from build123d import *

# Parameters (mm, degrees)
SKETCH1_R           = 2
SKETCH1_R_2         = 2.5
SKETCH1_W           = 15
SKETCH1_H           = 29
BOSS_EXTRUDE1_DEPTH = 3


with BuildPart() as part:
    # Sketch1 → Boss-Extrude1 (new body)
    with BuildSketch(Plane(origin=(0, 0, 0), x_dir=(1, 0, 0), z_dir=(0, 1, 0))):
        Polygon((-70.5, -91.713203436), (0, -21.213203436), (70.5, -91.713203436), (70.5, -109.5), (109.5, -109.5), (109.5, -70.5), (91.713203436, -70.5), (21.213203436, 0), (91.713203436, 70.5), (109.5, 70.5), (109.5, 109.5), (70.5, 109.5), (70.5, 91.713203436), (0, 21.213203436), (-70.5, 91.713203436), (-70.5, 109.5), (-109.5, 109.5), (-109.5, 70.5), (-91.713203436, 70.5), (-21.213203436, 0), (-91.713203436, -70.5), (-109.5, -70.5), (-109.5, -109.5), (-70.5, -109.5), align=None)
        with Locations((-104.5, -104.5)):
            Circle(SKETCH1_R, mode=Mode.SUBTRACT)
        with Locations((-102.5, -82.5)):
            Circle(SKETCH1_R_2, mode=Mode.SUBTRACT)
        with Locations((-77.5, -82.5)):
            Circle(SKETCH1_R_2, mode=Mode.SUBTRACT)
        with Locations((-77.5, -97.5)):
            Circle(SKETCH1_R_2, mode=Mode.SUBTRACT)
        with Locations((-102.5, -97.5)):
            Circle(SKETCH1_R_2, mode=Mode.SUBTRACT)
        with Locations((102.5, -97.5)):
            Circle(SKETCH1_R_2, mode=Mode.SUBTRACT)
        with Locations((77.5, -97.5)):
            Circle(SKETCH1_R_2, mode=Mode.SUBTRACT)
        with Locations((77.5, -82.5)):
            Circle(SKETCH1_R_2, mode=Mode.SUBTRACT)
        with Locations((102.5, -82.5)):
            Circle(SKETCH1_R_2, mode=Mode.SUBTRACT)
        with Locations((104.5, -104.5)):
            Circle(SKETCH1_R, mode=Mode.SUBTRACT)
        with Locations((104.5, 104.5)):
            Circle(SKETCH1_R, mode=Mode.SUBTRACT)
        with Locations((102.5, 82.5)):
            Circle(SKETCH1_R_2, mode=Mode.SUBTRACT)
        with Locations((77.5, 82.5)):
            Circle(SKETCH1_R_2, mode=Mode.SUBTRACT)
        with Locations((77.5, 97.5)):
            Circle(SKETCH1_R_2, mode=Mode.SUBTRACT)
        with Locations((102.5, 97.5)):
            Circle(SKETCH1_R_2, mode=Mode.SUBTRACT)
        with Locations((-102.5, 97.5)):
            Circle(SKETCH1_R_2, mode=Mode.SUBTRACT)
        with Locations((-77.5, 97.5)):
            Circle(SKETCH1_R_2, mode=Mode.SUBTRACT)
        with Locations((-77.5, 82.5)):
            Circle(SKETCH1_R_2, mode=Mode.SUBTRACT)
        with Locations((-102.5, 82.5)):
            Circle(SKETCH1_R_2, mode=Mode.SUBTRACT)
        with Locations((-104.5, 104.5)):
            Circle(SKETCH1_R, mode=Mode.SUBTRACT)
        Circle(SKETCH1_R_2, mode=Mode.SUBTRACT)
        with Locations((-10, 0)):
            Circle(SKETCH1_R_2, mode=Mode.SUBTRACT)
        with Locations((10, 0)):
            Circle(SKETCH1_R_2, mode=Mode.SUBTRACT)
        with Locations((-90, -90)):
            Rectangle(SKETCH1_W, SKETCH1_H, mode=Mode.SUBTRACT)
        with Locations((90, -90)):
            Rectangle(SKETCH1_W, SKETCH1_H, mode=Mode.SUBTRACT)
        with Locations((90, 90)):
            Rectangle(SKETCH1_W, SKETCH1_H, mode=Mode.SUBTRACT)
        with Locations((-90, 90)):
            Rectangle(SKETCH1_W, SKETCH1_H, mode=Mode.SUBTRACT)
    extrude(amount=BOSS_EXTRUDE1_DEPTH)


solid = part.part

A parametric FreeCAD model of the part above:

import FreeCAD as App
import Part
import Sketcher
from FreeCAD import Vector
Q = App.Units.Quantity


def add_polygon(sketch, points):
    """Adds a closed chain of lines whose ends are joined by coincident constraints."""
    first, n = sketch.GeometryCount, len(points)
    for a, b in zip(points, points[1:] + points[:1]):
        sketch.addGeometry(Part.LineSegment(App.Vector(*a, 0), App.Vector(*b, 0)), False)
    for i in range(n):
        sketch.addConstraint(Sketcher.Constraint("Coincident", first + i, 2, first + (i + 1) % n, 1))

doc = App.newDocument("Part")
body = doc.addObject("PartDesign::Body", "Body")

# Sketch on XZ plane
sketch1 = body.newObject("Sketcher::SketchObject", "Sketch")
sketch1.AttachmentSupport = (doc.getObject("XZ_Plane"), [""])
sketch1.MapMode = "FlatFace"
add_polygon(sketch1, [(-70.5, 91.7), (0, 21.2), (70.5, 91.7), (70.5, 109.5), (109.5, 109.5), (109.5, 70.5), (91.7, 70.5), (21.2, 0), (91.7, -70.5), (109.5, -70.5), (109.5, -109.5), (70.5, -109.5), (70.5, -91.7), (0, -21.2), (-70.5, -91.7), (-70.5, -109.5), (-109.5, -109.5), (-109.5, -70.5), (-91.7, -70.5), (-21.2, 0), (-91.7, 70.5), (-109.5, 70.5), (-109.5, 109.5), (-70.5, 109.5)])  # lines 0-23
sketch1.addGeometry(Part.Circle(Vector(-104.5, 104.5, 0), Vector(0, 0, 1), 2), False)  # 24
sketch1.addGeometry(Part.Circle(Vector(-102.5, 97.5, 0), Vector(0, 0, 1), 2.5), False)  # 25
sketch1.addGeometry(Part.Circle(Vector(-102.5, 82.5, 0), Vector(0, 0, 1), 2.5), False)  # 26
add_polygon(sketch1, [(-82.5, 104.5), (-97.5, 104.5), (-97.5, 75.5), (-82.5, 75.5)])  # lines 27-30
sketch1.addGeometry(Part.Circle(Vector(-77.5, 97.5, 0), Vector(0, 0, 1), 2.5), False)  # 31
sketch1.addGeometry(Part.Circle(Vector(-77.5, 82.5, 0), Vector(0, 0, 1), 2.5), False)  # 32
sketch1.addGeometry(Part.Circle(Vector(77.5, 97.5, 0), Vector(0, 0, 1), 2.5), False)  # 33
sketch1.addGeometry(Part.Circle(Vector(77.5, 82.5, 0), Vector(0, 0, 1), 2.5), False)  # 34
sketch1.addGeometry(Part.Circle(Vector(104.5, 104.5, 0), Vector(0, 0, 1), 2), False)  # 35
sketch1.addGeometry(Part.Circle(Vector(102.5, 97.5, 0), Vector(0, 0, 1), 2.5), False)  # 36
add_polygon(sketch1, [(97.5, 104.5), (82.5, 104.5), (82.5, 75.5), (97.5, 75.5)])  # lines 37-40
sketch1.addGeometry(Part.Circle(Vector(102.5, 82.5, 0), Vector(0, 0, 1), 2.5), False)  # 41
sketch1.addGeometry(Part.Circle(Vector(-10, 0, 0), Vector(0, 0, 1), 2.5), False)  # 42
sketch1.addGeometry(Part.Circle(Vector(-102.5, -82.5, 0), Vector(0, 0, 1), 2.5), False)  # 43
add_polygon(sketch1, [(-82.5, -75.5), (-97.5, -75.5), (-97.5, -104.5), (-82.5, -104.5)])  # lines 44-47
sketch1.addGeometry(Part.Circle(Vector(-102.5, -97.5, 0), Vector(0, 0, 1), 2.5), False)  # 48
sketch1.addGeometry(Part.Circle(Vector(-104.5, -104.5, 0), Vector(0, 0, 1), 2), False)  # 49
sketch1.addGeometry(Part.Circle(Vector(-77.5, -82.5, 0), Vector(0, 0, 1), 2.5), False)  # 50
sketch1.addGeometry(Part.Circle(Vector(-77.5, -97.5, 0), Vector(0, 0, 1), 2.5), False)  # 51
sketch1.addGeometry(Part.Circle(Vector(0, 0, 0), Vector(0, 0, 1), 2.5), False)  # 52
sketch1.addGeometry(Part.Circle(Vector(10, 0, 0), Vector(0, 0, 1), 2.5), False)  # 53
sketch1.addGeometry(Part.Circle(Vector(77.5, -82.5, 0), Vector(0, 0, 1), 2.5), False)  # 54
sketch1.addGeometry(Part.Circle(Vector(77.5, -97.5, 0), Vector(0, 0, 1), 2.5), False)  # 55
add_polygon(sketch1, [(97.5, -75.5), (82.5, -75.5), (82.5, -104.5), (97.5, -104.5)])  # lines 56-59
sketch1.addGeometry(Part.Circle(Vector(102.5, -82.5, 0), Vector(0, 0, 1), 2.5), False)  # 60
sketch1.addGeometry(Part.Circle(Vector(102.5, -97.5, 0), Vector(0, 0, 1), 2.5), False)  # 61
sketch1.addGeometry(Part.Circle(Vector(104.5, -104.5, 0), Vector(0, 0, 1), 2), False)  # 62
sketch1.addConstraint([
    Sketcher.Constraint("Vertical", 2),
    Sketcher.Constraint("Horizontal", 3),
    Sketcher.Constraint("Vertical", 4),
    Sketcher.Constraint("Horizontal", 5),
    Sketcher.Constraint("Horizontal", 8),
    Sketcher.Constraint("Vertical", 9),
    Sketcher.Constraint("Horizontal", 10),
    Sketcher.Constraint("Vertical", 11),
    Sketcher.Constraint("Vertical", 14),
    Sketcher.Constraint("Horizontal", 15),
    Sketcher.Constraint("Vertical", 16),
    Sketcher.Constraint("Horizontal", 17),
    Sketcher.Constraint("Horizontal", 20),
    Sketcher.Constraint("Vertical", 21),
    Sketcher.Constraint("Horizontal", 22),
    Sketcher.Constraint("Vertical", 23),
    Sketcher.Constraint("Horizontal", 27),
    Sketcher.Constraint("Vertical", 28),
    Sketcher.Constraint("Horizontal", 29),
    Sketcher.Constraint("Vertical", 30),
    Sketcher.Constraint("Horizontal", 37),
    Sketcher.Constraint("Vertical", 38),
    Sketcher.Constraint("Horizontal", 39),
    Sketcher.Constraint("Vertical", 40),
    Sketcher.Constraint("Horizontal", 44),
    Sketcher.Constraint("Vertical", 45),
    Sketcher.Constraint("Horizontal", 46),
    Sketcher.Constraint("Vertical", 47),
    Sketcher.Constraint("Horizontal", 56),
    Sketcher.Constraint("Vertical", 57),
    Sketcher.Constraint("Horizontal", 58),
    Sketcher.Constraint("Vertical", 59),
    Sketcher.Constraint("Coincident", 52, 3, -1, 1),
    Sketcher.Constraint("Equal", 25, 26),
    Sketcher.Constraint("Equal", 26, 31),
    Sketcher.Constraint("Equal", 31, 32),
    Sketcher.Constraint("Equal", 32, 33),
    Sketcher.Constraint("Equal", 33, 34),
    Sketcher.Constraint("Equal", 24, 35),
    Sketcher.Constraint("Equal", 34, 36),
    Sketcher.Constraint("Equal", 36, 41),
    Sketcher.Constraint("Equal", 41, 42),
    Sketcher.Constraint("Equal", 42, 43),
    Sketcher.Constraint("Equal", 43, 48),
    Sketcher.Constraint("Equal", 35, 49),
    Sketcher.Constraint("Equal", 48, 50),
    Sketcher.Constraint("Equal", 50, 51),
    Sketcher.Constraint("Equal", 51, 52),
    Sketcher.Constraint("Equal", 52, 53),
    Sketcher.Constraint("Equal", 53, 54),
    Sketcher.Constraint("Equal", 54, 55),
    Sketcher.Constraint("Equal", 55, 60),
    Sketcher.Constraint("Equal", 60, 61),
    Sketcher.Constraint("Equal", 49, 62),
    Sketcher.Constraint("Symmetric", 41, 3, 43, 3, -1, 1),
    Sketcher.Constraint("Symmetric", 36, 3, 48, 3, -1, 1),
    Sketcher.Constraint("Symmetric", 35, 3, 49, 3, -1, 1),
    Sketcher.Constraint("Symmetric", 34, 3, 50, 3, -1, 1),
    Sketcher.Constraint("Symmetric", 33, 3, 51, 3, -1, 1),
    Sketcher.Constraint("Symmetric", 42, 3, 53, 3, -1, 1),
    Sketcher.Constraint("Symmetric", 32, 3, 54, 3, -1, 1),
    Sketcher.Constraint("Symmetric", 31, 3, 55, 3, -1, 1),
    Sketcher.Constraint("Symmetric", 26, 3, 60, 3, -1, 1),
    Sketcher.Constraint("Symmetric", 25, 3, 61, 3, -1, 1),
    Sketcher.Constraint("Symmetric", 24, 3, 62, 3, -1, 1),
    Sketcher.Constraint("Symmetric", 0, 2, 12, 2, -1, 1),
    Sketcher.Constraint("Symmetric", 1, 2, 13, 2, -1, 1),
    Sketcher.Constraint("Symmetric", 3, 2, 15, 2, -1, 1),
    Sketcher.Constraint("Symmetric", 5, 2, 17, 2, -1, 1),
    Sketcher.Constraint("Symmetric", 6, 2, 18, 2, -1, 1),
    Sketcher.Constraint("Symmetric", 7, 2, 19, 2, -1, 1),
    Sketcher.Constraint("Symmetric", 9, 2, 21, 2, -1, 1),
    Sketcher.Constraint("Symmetric", 11, 2, 23, 2, -1, 1),
    Sketcher.Constraint("Symmetric", 39, 2, 44, 2, -1, 1),
    Sketcher.Constraint("Symmetric", 37, 2, 46, 2, -1, 1),
    Sketcher.Constraint("Symmetric", 29, 2, 56, 2, -1, 1),
    Sketcher.Constraint("Symmetric", 27, 2, 58, 2, -1, 1),
    Sketcher.Constraint("Symmetric", 31, 3, 33, 3, -2),
    Sketcher.Constraint("Symmetric", 32, 3, 34, 3, -2),
    Sketcher.Constraint("Symmetric", 24, 3, 35, 3, -2),
    Sketcher.Constraint("Symmetric", 25, 3, 36, 3, -2),
    Sketcher.Constraint("Symmetric", 26, 3, 41, 3, -2),
    Sketcher.Constraint("Symmetric", 11, 2, 13, 2, -2),
    Sketcher.Constraint("Symmetric", 9, 2, 15, 2, -2),
    Sketcher.Constraint("Symmetric", 7, 2, 17, 2, -2),
    Sketcher.Constraint("Symmetric", 30, 2, 37, 2, -2),
    Sketcher.Constraint("Symmetric", 28, 2, 39, 2, -2),
    Sketcher.Constraint("PointOnObject", 42, 3, -1),
    Sketcher.Constraint("PointOnObject", 0, 2, -2),
    Sketcher.Constraint("PointOnObject", 6, 2, -1),
    Sketcher.Constraint("Perpendicular", 0, 1),
    Sketcher.Constraint("Parallel", 1, 6),
    Sketcher.Constraint("Horizontal", 25, 3, 31, 3),
    Sketcher.Constraint("Horizontal", 26, 3, 32, 3),
    Sketcher.Constraint("Horizontal", 35, 3, 27, 2),
    Sketcher.Constraint("Vertical", 25, 3, 26, 3),
    Sketcher.Constraint("Vertical", 31, 3, 32, 3),
    Sketcher.Constraint("Equal", 20, 2),
    Sketcher.Constraint("Equal", 22, 4),
    Sketcher.Constraint("Equal", 1, 6),
    Sketcher.Constraint("Diameter", 24, Q("4 mm")),
    Sketcher.Constraint("Diameter", 25, Q("5 mm")),
    Sketcher.Constraint("DistanceX", 3, 1, 3, 2, Q("39 mm")),
    Sketcher.Constraint("DistanceX", 27, 2, 27, 1, Q("15 mm")),
    Sketcher.Constraint("DistanceY", 28, 2, 28, 1, Q("29 mm")),
    Sketcher.Constraint("DistanceX", 42, 3, -1, 1, Q("10 mm")),
    Sketcher.Constraint("DistanceX", 24, 3, -1, 1, Q("104.5 mm")),
    Sketcher.Constraint("DistanceY", -1, 1, 24, 3, Q("104.5 mm")),
    Sketcher.Constraint("DistanceX", 25, 3, -1, 1, Q("102.5 mm")),
    Sketcher.Constraint("DistanceY", -1, 1, 25, 3, Q("97.5 mm")),
    Sketcher.Constraint("DistanceY", -1, 1, 26, 3, Q("82.5 mm")),
    Sketcher.Constraint("DistanceX", 31, 3, -1, 1, Q("77.5 mm")),
    Sketcher.Constraint("DistanceX", -1, 1, 1, 2, Q("70.5 mm")),
    Sketcher.Constraint("DistanceX", 27, 2, -1, 1, Q("97.5 mm")),
    Sketcher.Constraint("DistanceX", 5, 2, 5, 1, Q("17.786797 mm")),
])
pad1 = body.newObject("PartDesign::Pad", "Pad")
pad1.Profile = sketch1
pad1.Length = 3
pad1.Reversed = True

doc.recompute()
